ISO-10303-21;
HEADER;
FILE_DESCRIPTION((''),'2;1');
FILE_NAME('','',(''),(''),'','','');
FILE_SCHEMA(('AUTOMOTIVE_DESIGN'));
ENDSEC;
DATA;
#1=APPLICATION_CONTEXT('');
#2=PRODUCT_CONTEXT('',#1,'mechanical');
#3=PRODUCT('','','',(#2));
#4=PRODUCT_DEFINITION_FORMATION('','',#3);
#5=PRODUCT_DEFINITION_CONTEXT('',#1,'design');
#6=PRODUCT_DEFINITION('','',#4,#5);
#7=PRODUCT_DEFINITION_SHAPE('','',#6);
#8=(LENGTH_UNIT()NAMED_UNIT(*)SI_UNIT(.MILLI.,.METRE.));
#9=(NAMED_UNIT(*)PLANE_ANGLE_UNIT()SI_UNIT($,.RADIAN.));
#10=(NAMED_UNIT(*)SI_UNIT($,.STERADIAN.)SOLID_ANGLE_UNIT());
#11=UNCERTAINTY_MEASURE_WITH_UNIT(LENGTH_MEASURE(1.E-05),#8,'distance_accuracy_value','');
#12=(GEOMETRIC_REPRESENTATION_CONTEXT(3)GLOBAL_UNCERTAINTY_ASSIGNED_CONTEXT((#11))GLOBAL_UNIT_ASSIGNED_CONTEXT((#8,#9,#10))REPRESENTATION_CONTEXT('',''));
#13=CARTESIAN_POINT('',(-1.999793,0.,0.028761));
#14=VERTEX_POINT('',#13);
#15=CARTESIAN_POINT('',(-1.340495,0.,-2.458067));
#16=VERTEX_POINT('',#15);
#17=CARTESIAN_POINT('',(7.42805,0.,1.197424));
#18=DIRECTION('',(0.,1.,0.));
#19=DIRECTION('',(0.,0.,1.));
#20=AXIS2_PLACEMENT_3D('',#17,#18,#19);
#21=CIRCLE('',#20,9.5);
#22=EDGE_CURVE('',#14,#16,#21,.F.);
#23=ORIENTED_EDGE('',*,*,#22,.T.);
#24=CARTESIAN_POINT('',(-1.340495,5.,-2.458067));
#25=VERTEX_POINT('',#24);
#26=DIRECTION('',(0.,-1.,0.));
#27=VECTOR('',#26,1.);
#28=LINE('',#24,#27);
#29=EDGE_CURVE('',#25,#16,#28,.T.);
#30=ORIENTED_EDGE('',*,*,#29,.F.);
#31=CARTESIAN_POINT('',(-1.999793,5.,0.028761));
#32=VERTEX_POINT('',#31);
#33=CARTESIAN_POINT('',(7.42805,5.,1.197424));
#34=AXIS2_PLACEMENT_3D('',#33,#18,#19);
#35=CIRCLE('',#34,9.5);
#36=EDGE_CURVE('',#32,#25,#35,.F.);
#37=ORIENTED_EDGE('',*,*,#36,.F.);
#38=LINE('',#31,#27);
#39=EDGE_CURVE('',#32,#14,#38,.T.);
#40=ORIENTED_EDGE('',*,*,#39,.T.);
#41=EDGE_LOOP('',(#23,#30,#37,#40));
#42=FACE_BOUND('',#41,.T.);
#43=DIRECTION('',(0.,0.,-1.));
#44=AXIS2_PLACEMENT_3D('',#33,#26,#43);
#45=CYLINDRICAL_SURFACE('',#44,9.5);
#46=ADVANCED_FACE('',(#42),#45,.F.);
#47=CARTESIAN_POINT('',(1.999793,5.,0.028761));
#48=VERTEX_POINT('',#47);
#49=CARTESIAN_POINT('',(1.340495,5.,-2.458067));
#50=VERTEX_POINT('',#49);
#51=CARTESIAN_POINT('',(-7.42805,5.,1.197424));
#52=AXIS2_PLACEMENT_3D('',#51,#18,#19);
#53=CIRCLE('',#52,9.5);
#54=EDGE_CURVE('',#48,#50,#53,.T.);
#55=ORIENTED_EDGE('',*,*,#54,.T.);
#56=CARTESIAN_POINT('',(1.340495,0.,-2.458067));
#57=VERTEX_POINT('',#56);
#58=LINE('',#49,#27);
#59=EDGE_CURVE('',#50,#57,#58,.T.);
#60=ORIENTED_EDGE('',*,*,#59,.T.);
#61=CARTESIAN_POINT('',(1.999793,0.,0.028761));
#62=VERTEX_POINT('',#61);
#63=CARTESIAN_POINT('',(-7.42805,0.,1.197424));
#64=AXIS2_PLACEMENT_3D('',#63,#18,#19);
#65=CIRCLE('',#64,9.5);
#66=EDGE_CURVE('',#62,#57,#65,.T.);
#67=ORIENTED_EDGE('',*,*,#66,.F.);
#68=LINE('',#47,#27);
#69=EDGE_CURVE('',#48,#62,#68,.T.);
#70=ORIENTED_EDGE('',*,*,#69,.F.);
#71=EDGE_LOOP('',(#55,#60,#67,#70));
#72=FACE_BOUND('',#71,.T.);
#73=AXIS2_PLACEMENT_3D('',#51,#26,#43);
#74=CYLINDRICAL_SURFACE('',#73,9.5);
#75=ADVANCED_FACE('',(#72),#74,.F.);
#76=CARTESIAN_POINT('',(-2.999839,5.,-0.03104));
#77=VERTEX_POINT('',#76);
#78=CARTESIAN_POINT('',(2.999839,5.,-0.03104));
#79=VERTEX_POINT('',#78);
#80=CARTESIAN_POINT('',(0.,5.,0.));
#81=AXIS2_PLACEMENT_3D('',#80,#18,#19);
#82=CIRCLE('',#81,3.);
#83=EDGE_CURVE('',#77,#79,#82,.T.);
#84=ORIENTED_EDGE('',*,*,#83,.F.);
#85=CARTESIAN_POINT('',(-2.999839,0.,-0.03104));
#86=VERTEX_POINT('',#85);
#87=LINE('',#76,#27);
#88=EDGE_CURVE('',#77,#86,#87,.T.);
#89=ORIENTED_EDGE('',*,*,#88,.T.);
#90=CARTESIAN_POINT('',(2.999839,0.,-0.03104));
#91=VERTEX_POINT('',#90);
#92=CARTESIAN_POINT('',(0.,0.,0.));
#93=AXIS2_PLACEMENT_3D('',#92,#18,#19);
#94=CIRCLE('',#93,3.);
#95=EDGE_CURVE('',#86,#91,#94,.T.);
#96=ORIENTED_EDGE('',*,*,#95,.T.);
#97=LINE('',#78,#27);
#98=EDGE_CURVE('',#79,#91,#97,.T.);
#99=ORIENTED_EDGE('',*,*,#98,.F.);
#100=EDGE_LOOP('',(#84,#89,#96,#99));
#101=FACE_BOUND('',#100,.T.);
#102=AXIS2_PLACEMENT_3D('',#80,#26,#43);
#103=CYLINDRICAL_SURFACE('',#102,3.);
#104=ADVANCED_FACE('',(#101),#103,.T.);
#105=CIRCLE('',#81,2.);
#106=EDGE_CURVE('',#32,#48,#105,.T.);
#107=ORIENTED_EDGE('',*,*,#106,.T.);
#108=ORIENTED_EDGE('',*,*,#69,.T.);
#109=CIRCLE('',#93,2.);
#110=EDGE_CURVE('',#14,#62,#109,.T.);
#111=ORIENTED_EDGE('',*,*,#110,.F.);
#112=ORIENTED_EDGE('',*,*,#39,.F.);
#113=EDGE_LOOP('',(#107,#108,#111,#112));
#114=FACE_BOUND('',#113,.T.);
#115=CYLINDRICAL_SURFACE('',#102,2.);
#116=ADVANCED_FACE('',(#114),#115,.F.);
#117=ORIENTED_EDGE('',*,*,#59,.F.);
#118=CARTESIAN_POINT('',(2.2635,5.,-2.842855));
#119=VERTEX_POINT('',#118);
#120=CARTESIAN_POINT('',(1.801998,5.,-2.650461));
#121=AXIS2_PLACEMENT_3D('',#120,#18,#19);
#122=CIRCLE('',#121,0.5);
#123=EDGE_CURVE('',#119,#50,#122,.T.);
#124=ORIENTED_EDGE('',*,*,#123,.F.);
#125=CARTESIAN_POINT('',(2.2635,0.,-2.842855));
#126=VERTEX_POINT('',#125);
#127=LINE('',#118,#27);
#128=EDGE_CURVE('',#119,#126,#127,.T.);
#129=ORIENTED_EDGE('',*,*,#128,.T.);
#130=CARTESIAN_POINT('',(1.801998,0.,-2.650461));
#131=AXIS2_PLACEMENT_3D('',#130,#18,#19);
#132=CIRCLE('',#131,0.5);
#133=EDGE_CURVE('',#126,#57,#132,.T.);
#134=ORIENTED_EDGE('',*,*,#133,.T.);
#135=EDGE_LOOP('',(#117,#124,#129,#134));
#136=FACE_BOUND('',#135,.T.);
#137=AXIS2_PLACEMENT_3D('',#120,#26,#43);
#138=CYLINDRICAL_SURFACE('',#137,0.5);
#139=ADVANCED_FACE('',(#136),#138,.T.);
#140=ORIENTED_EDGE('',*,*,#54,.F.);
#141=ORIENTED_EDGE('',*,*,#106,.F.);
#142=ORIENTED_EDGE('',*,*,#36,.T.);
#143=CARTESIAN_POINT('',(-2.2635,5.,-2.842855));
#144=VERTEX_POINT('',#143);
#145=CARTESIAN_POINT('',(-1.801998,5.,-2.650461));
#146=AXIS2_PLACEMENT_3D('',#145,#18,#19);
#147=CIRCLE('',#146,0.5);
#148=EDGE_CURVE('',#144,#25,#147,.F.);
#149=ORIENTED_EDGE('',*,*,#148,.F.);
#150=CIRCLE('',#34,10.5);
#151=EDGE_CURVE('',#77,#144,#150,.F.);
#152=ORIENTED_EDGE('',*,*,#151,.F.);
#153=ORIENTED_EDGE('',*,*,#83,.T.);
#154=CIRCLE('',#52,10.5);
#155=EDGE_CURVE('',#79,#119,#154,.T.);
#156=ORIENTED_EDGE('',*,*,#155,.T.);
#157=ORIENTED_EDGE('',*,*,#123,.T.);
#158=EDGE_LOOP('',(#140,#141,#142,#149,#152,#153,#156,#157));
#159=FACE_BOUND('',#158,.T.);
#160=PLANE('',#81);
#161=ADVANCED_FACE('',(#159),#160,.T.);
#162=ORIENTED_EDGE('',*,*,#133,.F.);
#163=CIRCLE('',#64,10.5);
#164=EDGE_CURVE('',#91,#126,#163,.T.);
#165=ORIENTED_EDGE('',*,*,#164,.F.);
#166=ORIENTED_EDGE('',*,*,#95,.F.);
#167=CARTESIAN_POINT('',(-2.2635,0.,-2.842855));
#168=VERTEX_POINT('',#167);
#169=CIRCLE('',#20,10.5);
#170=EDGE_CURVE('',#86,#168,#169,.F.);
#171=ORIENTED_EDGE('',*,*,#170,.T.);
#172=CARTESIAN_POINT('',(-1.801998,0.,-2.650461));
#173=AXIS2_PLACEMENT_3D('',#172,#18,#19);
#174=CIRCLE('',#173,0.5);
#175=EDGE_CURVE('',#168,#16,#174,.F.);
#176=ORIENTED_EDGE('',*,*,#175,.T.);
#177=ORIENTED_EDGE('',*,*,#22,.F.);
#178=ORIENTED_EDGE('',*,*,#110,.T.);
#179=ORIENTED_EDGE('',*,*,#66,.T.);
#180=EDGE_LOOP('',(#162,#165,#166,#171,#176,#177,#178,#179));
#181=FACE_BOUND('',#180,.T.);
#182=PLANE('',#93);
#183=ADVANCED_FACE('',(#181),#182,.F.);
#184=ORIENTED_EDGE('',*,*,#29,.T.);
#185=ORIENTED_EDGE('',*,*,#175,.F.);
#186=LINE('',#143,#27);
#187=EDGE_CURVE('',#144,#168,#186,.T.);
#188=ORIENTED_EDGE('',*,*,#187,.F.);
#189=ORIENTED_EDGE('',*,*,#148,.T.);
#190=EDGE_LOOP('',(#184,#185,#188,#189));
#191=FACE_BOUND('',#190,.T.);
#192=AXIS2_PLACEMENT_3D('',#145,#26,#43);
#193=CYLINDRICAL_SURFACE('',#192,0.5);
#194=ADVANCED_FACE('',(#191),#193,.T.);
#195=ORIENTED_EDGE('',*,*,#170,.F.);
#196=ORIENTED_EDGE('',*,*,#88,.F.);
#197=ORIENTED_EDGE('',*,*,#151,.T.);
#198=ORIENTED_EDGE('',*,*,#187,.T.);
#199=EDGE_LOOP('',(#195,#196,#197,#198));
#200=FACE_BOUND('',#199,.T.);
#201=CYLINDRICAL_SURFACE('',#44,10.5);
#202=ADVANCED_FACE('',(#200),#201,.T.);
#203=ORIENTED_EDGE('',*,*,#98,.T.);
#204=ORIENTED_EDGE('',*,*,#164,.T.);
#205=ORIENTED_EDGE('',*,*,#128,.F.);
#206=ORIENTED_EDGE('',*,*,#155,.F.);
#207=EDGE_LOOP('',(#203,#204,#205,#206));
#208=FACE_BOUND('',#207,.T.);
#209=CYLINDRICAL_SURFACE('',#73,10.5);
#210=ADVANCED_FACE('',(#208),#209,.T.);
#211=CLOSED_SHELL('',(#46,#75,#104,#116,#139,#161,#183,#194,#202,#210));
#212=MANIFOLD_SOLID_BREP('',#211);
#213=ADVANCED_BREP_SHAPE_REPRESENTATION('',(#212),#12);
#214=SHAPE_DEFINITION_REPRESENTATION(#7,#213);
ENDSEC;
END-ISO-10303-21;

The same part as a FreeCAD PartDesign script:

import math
import FreeCAD as App
import Part
import Sketcher

V = App.Vector
Q = App.Units.Quantity

doc = App.newDocument("Part")
params = doc.addObject("Spreadsheet::Sheet", "Params")
for row, (alias, value) in enumerate([
    ("sketch1_radius", "2 mm"),
    ("sketch1_radius2", "3 mm"),
    ("sketch1_radius3", "9.5 mm"),
    ("sketch1_radius4", "0.5 mm"),
    ("pad1_length", "5 mm"),
], start=1):
    params.set(f"A{row}", alias)
    params.set(f"B{row}", "=" + value)
    params.setAlias(f"B{row}", alias)

body = doc.addObject("PartDesign::Body", "Body")

# Sketch on XZ plane
sketch1 = doc.addObject("Sketcher::SketchObject", "Sketch")
body.addObject(sketch1)
sketch1.AttachmentSupport = (doc.XZ_Plane, [""])
sketch1.MapMode = "FlatFace"
sketch1.addGeometry([
    Part.ArcOfCircle(Part.Circle(V(-7.42805, 1.197424, 0), V(0, 0, 1), 9.5), math.radians(-22.630612), math.radians(-7.066267)),  # 0
    Part.ArcOfCircle(Part.Circle(V(0, 0, 0), V(0, 0, 1), 2), math.radians(0.823965), math.radians(179.176035)),  # 1
    Part.ArcOfCircle(Part.Circle(V(7.42805, 1.197424, 0), V(0, 0, 1), 9.5), math.radians(-172.933733), math.radians(-157.369388)),  # 2
    Part.ArcOfCircle(Part.Circle(V(-1.801998, -2.650461, 0), V(0, 0, 1), 0.5), math.radians(-157.369388), math.radians(22.630612)),  # 3
    Part.ArcOfCircle(Part.Circle(V(7.42805, 1.197424, 0), V(0, 0, 1), 10.5), math.radians(-173.281201), math.radians(-157.369388)),  # 4
    Part.ArcOfCircle(Part.Circle(V(0, 0, 0), V(0, 0, 1), 3), math.radians(-0.592828), math.radians(180.592828)),  # 5
    Part.ArcOfCircle(Part.Circle(V(-7.42805, 1.197424, 0), V(0, 0, 1), 10.5), math.radians(-22.630612), math.radians(-6.718799)),  # 6
    Part.ArcOfCircle(Part.Circle(V(1.801998, -2.650461, 0), V(0, 0, 1), 0.5), math.radians(157.369388), math.radians(337.369388)),  # 7
], False)
sketch1.addConstraint([
    Sketcher.Constraint("Coincident", 0, 2, 1, 1),
    Sketcher.Constraint("Coincident", 1, 2, 2, 1),
    Sketcher.Constraint("Tangent", 2, 2, 3, 2),
    Sketcher.Constraint("Tangent", 3, 1, 4, 2),
    Sketcher.Constraint("Coincident", 4, 1, 5, 2),
    Sketcher.Constraint("Coincident", 5, 1, 6, 2),
    Sketcher.Constraint("Tangent", 6, 1, 7, 2),
    Sketcher.Constraint("Tangent", 7, 1, 0, 1),
    Sketcher.Constraint("Coincident", 1, 3, -1, 1),
    Sketcher.Constraint("Coincident", 5, 3, -1, 1),
    Sketcher.Constraint("Coincident", 4, 3, 2, 3),
    Sketcher.Constraint("Coincident", 6, 3, 0, 3),
    Sketcher.Constraint("Equal", 0, 2),
    Sketcher.Constraint("Equal", 4, 6),
    Sketcher.Constraint("Symmetric", 0, 3, 2, 3, -2),
    Sketcher.Constraint("Horizontal", 3, 3, 7, 3),
    Sketcher.Constraint("Radius", 1, Q("2 mm")),
    Sketcher.Constraint("Radius", 5, Q("3 mm")),
    Sketcher.Constraint("Radius", 0, Q("9.5 mm")),
    Sketcher.Constraint("Radius", 3, Q("0.5 mm")),
    Sketcher.Constraint("DistanceX", 3, 1, -1, 1, Q("2.2635 mm")),
    Sketcher.Constraint("DistanceX", 0, 3, 2, 3, Q("14.8561 mm")),
    Sketcher.Constraint("DistanceY", 4, 1, 1, 2, Q("0.059801 mm")),
])
sketch1.setExpression("Constraints[16]", "Params.sketch1_radius")
sketch1.setExpression("Constraints[17]", "Params.sketch1_radius2")
sketch1.setExpression("Constraints[18]", "Params.sketch1_radius3")
sketch1.setExpression("Constraints[19]", "Params.sketch1_radius4")
pad1 = doc.addObject("PartDesign::Pad", "Pad")
body.addObject(pad1)
pad1.Profile = sketch1
pad1.setExpression("Length", "Params.pad1_length")
pad1.Reversed = True

doc.recompute()
